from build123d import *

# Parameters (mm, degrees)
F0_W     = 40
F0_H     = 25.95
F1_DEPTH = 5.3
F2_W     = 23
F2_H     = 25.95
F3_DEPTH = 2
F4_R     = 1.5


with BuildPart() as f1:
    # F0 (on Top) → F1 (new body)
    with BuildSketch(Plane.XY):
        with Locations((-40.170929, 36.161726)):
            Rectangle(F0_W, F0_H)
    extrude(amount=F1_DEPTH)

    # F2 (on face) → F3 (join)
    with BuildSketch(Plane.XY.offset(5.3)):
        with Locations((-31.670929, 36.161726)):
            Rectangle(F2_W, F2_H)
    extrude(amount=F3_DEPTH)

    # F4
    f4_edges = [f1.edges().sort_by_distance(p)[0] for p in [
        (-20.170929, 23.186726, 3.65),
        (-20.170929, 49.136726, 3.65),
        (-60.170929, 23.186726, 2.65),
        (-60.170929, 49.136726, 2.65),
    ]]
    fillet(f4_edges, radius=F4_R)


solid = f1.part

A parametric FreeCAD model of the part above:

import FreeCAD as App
import Part
import Sketcher

V = App.Vector


def edges_at(feature, points):
    """Names of the edges that pass closest to the given points."""
    edges = feature.Shape.Edges
    near = lambda p: min(range(len(edges)), key=lambda i: edges[i].distToShape(Part.Vertex(*p))[0])
    return sorted({f"Edge{near(p) + 1}" for p in points})

doc = App.newDocument("Part")
params = doc.addObject("Spreadsheet::Sheet", "Params")
for row, (alias, value) in enumerate([
    ("sketch1_width", "40 mm"),
    ("sketch1_height", "25.95 mm"),
    ("pad1_length", "5.3 mm"),
    ("sketch2_width", "23 mm"),
    ("sketch2_height", "25.95 mm"),
    ("pad2_length", "2 mm"),
    ("fillet_radius", "1.5 mm"),
], start=1):
    params.set(f"A{row}", alias)
    params.set(f"B{row}", "=" + value)
    params.setAlias(f"B{row}", alias)

body = doc.addObject("PartDesign::Body", "Body")

sketch1 = body.newObject("Sketcher::SketchObject", "Sketch")
sketch1.AttachmentSupport = (doc.getObject("XY_Plane"), [""])
sketch1.MapMode = "FlatFace"
sketch1.addGeometry(Part.LineSegment(V(-60, 49, 0), V(-60, 23, 0)), False)
sketch1.addGeometry(Part.LineSegment(V(-60, 23, 0), V(-20, 23, 0)), False)
sketch1.addGeometry(Part.LineSegment(V(-20, 23, 0), V(-20, 49, 0)), False)
sketch1.addGeometry(Part.LineSegment(V(-20, 49, 0), V(-60, 49, 0)), False)
sketch1.addConstraint(Sketcher.Constraint("Coincident", 0, 2, 1, 1))
sketch1.addConstraint(Sketcher.Constraint("Coincident", 1, 2, 2, 1))
sketch1.addConstraint(Sketcher.Constraint("Coincident", 2, 2, 3, 1))
sketch1.addConstraint(Sketcher.Constraint("Coincident", 3, 2, 0, 1))
sketch1.addConstraint(Sketcher.Constraint("Vertical", 0))
sketch1.addConstraint(Sketcher.Constraint("Horizontal", 1))
sketch1.addConstraint(Sketcher.Constraint("Vertical", 2))
sketch1.addConstraint(Sketcher.Constraint("Horizontal", 3))
sketch1.addConstraint(Sketcher.Constraint("DistanceX", 1, 1, 1, 2, 40.0))
sketch1.addConstraint(Sketcher.Constraint("DistanceY", 0, 2, 0, 1, 25.95))
sketch1.addConstraint(Sketcher.Constraint("DistanceX", 0, 2, -1, 1, 60.170929))
sketch1.addConstraint(Sketcher.Constraint("DistanceY", -1, 1, 0, 2, 23.186726))
sketch1.setExpression("Constraints[8]", "Params.sketch1_width")
sketch1.setExpression("Constraints[9]", "Params.sketch1_height")
pad1 = body.newObject("PartDesign::Pad", "Pad")
pad1.Profile = sketch1
pad1.setExpression("Length", "Params.pad1_length")

sketch2 = body.newObject("Sketcher::SketchObject", "Sketch001")
sketch2.AttachmentSupport = (doc.getObject("XY_Plane"), [""])
sketch2.MapMode = "FlatFace"
sketch2.AttachmentOffset = App.Placement(V(0, 0, 5.3), App.Rotation())
sketch2.addGeometry(Part.LineSegment(V(-43, 49, 0), V(-43, 23, 0)), False)
sketch2.addGeometry(Part.LineSegment(V(-43, 23, 0), V(-20, 23, 0)), False)
sketch2.addGeometry(Part.LineSegment(V(-20, 23, 0), V(-20, 49, 0)), False)
sketch2.addGeometry(Part.LineSegment(V(-20, 49, 0), V(-43, 49, 0)), False)
sketch2.addConstraint(Sketcher.Constraint("Coincident", 0, 2, 1, 1))
sketch2.addConstraint(Sketcher.Constraint("Coincident", 1, 2, 2, 1))
sketch2.addConstraint(Sketcher.Constraint("Coincident", 2, 2, 3, 1))
sketch2.addConstraint(Sketcher.Constraint("Coincident", 3, 2, 0, 1))
sketch2.addConstraint(Sketcher.Constraint("Vertical", 0))
sketch2.addConstraint(Sketcher.Constraint("Horizontal", 1))
sketch2.addConstraint(Sketcher.Constraint("Vertical", 2))
sketch2.addConstraint(Sketcher.Constraint("Horizontal", 3))
sketch2.addConstraint(Sketcher.Constraint("DistanceX", 1, 1, 1, 2, 23.0))
sketch2.addConstraint(Sketcher.Constraint("DistanceY", 0, 2, 0, 1, 25.95))
sketch2.addConstraint(Sketcher.Constraint("DistanceX", 0, 2, -1, 1, 43.170929))
sketch2.addConstraint(Sketcher.Constraint("DistanceY", -1, 1, 0, 2, 23.186726))
sketch2.setExpression("Constraints[8]", "Params.sketch2_width")
sketch2.setExpression("Constraints[9]", "Params.sketch2_height")
pad2 = body.newObject("PartDesign::Pad", "Pad001")
pad2.Profile = sketch2
pad2.setExpression("Length", "Params.pad2_length")
doc.recompute()

fillet = body.newObject("PartDesign::Fillet", "Fillet")
fillet.Base = (pad2, edges_at(pad2, [
    (-20.171, 23.187, 3.65),
    (-20.171, 49.137, 3.65),
    (-60.171, 23.187, 2.65),
    (-60.171, 49.137, 2.65),
]))
fillet.setExpression("Radius", "Params.fillet_radius")

doc.recompute()
